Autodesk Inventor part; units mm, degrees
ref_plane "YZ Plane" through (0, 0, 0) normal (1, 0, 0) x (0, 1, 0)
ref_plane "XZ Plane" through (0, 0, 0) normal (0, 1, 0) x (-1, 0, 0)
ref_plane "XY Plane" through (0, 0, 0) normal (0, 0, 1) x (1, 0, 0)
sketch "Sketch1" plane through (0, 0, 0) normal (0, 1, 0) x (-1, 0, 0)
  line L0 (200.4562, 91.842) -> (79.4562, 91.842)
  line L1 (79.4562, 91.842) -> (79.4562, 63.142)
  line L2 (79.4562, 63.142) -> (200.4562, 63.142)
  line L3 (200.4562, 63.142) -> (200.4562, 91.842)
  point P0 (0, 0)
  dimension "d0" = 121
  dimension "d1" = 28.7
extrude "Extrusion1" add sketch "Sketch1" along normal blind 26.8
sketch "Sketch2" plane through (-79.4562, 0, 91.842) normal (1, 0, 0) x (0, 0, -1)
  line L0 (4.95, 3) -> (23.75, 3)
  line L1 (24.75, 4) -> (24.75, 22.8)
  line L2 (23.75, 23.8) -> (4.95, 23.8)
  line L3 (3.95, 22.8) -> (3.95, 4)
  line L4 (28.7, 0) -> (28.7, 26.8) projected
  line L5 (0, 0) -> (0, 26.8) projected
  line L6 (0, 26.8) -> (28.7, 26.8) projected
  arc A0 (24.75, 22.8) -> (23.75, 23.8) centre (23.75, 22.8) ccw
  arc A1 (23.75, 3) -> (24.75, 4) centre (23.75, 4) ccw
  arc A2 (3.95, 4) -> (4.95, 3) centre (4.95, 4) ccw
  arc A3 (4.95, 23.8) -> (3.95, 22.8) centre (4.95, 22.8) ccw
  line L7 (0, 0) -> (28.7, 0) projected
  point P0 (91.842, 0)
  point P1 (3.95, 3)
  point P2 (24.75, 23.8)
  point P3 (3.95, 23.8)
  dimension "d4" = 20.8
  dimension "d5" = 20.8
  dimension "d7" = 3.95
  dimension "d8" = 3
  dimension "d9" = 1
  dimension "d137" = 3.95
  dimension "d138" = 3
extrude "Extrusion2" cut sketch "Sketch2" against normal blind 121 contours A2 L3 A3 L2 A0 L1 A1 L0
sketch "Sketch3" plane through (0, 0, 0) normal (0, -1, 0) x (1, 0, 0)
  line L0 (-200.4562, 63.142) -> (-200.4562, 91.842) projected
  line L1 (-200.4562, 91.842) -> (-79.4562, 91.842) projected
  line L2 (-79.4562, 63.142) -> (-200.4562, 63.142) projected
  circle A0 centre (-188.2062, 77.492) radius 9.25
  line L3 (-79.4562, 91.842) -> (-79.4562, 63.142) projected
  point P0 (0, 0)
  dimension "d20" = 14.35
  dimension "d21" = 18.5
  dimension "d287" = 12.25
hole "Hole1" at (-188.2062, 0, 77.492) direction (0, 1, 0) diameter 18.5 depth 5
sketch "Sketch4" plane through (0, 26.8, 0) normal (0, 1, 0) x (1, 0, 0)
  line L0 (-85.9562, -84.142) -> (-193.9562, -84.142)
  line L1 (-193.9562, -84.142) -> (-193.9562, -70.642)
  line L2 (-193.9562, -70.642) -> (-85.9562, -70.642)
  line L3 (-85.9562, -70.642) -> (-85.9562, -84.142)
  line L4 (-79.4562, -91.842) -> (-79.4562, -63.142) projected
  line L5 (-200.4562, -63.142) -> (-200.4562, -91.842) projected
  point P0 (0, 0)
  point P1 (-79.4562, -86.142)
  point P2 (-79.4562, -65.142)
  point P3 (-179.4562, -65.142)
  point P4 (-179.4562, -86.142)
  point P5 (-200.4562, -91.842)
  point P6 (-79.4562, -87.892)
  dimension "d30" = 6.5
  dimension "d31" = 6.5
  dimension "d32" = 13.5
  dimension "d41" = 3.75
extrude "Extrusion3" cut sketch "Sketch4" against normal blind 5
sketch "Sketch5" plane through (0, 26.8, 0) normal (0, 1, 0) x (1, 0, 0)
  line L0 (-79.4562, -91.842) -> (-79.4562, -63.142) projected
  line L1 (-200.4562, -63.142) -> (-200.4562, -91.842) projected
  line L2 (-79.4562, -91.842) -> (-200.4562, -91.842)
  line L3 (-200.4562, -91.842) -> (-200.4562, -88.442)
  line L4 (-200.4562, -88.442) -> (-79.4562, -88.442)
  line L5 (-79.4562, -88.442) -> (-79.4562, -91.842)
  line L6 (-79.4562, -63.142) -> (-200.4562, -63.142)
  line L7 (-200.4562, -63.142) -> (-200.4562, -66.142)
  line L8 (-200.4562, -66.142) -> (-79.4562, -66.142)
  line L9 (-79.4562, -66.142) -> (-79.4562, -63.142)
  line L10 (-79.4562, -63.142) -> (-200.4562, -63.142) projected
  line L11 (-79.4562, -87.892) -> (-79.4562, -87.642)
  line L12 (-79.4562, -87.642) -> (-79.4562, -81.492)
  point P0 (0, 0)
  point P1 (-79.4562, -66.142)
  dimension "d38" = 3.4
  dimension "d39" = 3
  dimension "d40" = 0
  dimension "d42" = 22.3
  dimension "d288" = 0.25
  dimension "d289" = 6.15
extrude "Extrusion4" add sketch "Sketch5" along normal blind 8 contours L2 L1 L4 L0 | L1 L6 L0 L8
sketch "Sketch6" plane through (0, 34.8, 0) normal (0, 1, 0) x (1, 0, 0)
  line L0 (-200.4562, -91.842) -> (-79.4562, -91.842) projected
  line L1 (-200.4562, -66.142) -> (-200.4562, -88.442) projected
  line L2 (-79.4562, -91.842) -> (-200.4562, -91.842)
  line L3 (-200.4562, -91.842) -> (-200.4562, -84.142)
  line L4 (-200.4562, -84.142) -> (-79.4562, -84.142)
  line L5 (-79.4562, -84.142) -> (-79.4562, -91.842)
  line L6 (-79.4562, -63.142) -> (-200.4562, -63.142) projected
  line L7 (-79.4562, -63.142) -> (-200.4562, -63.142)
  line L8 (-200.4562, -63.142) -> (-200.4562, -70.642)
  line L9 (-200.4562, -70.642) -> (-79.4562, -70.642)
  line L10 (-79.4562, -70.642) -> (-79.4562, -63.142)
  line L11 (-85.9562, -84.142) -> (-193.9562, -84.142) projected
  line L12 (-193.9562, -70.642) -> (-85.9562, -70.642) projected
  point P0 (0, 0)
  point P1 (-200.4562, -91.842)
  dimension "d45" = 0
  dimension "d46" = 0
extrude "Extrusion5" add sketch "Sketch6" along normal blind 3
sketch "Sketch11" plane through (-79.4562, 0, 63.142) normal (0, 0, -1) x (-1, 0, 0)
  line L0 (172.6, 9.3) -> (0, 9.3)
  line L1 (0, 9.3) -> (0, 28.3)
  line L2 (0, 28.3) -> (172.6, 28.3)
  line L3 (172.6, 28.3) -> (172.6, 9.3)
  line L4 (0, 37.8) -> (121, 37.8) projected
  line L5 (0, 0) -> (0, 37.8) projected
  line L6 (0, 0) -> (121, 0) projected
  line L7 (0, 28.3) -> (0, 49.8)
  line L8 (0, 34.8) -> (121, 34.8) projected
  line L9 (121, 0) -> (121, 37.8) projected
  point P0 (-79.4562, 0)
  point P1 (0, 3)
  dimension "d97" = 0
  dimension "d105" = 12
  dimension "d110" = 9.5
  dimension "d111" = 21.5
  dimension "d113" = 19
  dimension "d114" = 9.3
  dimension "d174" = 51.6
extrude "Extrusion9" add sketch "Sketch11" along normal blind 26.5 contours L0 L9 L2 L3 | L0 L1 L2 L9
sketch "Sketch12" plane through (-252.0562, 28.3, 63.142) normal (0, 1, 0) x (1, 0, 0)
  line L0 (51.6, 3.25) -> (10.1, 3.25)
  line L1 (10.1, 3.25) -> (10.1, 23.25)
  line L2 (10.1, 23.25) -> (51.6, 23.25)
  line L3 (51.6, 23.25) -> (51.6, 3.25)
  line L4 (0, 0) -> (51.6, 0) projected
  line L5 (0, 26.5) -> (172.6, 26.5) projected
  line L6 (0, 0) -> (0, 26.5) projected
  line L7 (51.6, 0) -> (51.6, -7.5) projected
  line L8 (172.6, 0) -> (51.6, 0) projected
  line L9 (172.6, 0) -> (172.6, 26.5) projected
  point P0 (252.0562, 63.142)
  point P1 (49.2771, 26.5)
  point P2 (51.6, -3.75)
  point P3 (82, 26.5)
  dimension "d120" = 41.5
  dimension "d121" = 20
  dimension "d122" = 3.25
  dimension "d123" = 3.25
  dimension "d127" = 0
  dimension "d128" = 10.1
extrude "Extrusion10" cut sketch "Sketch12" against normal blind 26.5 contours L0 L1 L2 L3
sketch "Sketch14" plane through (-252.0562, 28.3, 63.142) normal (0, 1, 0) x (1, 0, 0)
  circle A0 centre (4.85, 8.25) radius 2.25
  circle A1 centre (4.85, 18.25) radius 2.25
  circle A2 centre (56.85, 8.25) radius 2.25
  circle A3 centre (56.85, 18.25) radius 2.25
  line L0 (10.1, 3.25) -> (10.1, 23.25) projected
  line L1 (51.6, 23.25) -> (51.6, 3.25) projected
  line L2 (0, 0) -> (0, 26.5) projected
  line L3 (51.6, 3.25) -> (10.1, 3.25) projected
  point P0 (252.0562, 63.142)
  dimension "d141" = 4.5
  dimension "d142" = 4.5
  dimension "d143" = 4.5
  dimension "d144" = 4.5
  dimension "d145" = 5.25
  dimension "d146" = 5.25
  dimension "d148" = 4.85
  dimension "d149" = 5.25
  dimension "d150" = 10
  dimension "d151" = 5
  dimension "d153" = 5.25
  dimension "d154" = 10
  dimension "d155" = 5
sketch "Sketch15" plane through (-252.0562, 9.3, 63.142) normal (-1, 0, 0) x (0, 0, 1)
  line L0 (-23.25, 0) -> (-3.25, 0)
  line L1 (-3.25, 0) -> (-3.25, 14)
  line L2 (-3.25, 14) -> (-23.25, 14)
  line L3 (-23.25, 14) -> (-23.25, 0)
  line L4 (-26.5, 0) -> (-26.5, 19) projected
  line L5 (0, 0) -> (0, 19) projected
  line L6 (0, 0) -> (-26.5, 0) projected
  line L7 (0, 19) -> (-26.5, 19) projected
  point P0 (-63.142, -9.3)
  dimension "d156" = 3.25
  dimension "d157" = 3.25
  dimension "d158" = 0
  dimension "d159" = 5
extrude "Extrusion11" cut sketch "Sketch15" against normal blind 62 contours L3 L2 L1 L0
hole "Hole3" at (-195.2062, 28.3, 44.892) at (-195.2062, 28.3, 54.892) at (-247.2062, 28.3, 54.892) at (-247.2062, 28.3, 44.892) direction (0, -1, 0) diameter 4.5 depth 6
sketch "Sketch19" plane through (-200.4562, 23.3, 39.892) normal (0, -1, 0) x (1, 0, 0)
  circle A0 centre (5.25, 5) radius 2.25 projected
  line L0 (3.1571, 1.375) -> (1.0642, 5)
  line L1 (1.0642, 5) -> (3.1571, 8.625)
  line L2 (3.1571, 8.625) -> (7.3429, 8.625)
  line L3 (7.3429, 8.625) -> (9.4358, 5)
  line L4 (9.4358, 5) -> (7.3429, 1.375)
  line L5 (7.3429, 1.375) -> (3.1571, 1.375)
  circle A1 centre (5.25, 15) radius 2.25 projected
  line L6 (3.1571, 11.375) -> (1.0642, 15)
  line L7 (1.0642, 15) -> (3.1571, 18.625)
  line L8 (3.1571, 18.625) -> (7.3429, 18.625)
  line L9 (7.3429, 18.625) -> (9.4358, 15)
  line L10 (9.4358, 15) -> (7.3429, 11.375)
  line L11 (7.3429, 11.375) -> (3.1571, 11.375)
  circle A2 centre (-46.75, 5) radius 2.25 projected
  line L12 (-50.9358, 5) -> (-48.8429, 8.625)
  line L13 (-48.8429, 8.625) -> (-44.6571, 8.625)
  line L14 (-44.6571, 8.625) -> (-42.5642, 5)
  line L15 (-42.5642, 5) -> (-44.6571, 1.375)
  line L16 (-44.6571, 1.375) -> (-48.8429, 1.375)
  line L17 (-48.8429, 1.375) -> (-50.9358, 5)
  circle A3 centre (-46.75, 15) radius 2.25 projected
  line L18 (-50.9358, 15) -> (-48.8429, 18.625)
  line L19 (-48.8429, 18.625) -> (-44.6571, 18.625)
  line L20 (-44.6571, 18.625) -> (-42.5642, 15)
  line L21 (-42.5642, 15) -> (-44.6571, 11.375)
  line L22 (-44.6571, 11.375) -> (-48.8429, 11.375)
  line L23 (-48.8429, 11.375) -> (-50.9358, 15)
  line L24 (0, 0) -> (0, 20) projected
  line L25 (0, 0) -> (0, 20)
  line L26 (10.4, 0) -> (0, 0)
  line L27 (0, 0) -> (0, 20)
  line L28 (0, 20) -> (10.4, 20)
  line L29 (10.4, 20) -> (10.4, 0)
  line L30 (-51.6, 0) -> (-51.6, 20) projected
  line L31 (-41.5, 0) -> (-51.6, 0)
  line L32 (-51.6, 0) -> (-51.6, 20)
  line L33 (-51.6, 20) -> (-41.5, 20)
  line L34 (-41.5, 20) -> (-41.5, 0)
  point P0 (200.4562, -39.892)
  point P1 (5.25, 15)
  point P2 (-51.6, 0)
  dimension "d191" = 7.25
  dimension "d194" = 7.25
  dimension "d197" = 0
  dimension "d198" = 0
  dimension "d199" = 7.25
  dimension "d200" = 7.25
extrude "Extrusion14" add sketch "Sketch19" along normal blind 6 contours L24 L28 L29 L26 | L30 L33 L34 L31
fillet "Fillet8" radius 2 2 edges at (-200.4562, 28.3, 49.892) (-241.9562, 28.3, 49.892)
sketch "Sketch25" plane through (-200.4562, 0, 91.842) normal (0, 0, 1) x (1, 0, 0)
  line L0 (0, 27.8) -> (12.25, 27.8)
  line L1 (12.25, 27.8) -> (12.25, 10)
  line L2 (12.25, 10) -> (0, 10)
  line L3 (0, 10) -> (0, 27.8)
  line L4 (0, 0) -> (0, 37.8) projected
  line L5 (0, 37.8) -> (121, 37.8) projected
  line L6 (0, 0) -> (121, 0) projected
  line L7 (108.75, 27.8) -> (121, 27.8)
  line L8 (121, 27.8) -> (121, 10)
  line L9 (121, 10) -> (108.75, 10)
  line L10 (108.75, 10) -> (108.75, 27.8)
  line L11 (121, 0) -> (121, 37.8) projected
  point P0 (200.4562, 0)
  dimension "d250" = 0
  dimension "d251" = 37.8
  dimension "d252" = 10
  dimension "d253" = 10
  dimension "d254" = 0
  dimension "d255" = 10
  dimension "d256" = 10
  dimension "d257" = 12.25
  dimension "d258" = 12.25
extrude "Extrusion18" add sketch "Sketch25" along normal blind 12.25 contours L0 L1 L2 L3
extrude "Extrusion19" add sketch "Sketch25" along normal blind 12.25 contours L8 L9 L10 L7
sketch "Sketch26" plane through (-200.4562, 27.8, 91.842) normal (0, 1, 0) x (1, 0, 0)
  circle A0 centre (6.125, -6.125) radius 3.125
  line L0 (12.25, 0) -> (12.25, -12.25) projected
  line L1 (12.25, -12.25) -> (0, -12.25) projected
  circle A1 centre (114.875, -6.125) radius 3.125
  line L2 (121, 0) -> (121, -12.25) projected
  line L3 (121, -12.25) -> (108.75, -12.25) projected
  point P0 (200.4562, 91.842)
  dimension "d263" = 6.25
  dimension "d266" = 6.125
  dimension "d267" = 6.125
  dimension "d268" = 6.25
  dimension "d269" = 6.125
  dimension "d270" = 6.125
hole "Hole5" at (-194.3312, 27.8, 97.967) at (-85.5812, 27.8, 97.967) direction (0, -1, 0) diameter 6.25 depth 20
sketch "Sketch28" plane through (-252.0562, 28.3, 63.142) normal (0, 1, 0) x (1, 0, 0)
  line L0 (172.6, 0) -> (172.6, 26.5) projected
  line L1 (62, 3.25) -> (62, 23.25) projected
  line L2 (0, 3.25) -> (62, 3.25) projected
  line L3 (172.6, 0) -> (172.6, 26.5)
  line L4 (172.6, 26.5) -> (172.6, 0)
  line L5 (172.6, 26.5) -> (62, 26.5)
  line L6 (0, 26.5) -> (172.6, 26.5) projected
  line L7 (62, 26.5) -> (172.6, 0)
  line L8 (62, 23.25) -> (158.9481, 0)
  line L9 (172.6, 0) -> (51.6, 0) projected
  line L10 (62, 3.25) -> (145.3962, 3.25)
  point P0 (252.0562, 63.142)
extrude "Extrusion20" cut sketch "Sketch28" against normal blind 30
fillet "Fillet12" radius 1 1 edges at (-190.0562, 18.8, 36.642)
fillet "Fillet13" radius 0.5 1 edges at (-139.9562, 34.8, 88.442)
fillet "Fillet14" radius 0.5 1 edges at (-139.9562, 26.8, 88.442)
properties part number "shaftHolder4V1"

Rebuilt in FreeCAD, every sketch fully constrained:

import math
import FreeCAD as App
import Part
import Sketcher
Q = App.Units.Quantity


def edges_at(feature, points):
    """Names of the edges that pass closest to the given points."""
    edges = feature.Shape.Edges
    near = lambda p: min(range(len(edges)), key=lambda i: edges[i].distToShape(Part.Vertex(*p))[0])
    return sorted({f"Edge{near(p) + 1}" for p in points})


def add_polygon(sketch, points):
    """Adds a closed chain of lines whose ends are joined by coincident constraints."""
    first, n = sketch.GeometryCount, len(points)
    for a, b in zip(points, points[1:] + points[:1]):
        sketch.addGeometry(Part.LineSegment(App.Vector(*a, 0), App.Vector(*b, 0)), False)
    for i in range(n):
        sketch.addConstraint(Sketcher.Constraint("Coincident", first + i, 2, first + (i + 1) % n, 1))

doc = App.newDocument("Part")
body = doc.addObject("PartDesign::Body", "Body")

# Sketch on XZ plane
sketch1 = doc.addObject("Sketcher::SketchObject", "Sketch")
body.addObject(sketch1)
sketch1.AttachmentSupport = (doc.XZ_Plane, [""])
sketch1.MapMode = "FlatFace"
add_polygon(sketch1, [(-200.4562, 63.142), (-200.4562, 91.842), (-79.4562, 91.842), (-79.4562, 63.142)])  # lines 0-3
sketch1.addConstraint([
    Sketcher.Constraint("Vertical", 0),
    Sketcher.Constraint("Horizontal", 1),
    Sketcher.Constraint("Vertical", 2),
    Sketcher.Constraint("Horizontal", 3),
    Sketcher.Constraint("DistanceX", 1, 1, 1, 2, Q("121 mm")),
    Sketcher.Constraint("DistanceY", 0, 1, 0, 2, Q("28.7 mm")),
    Sketcher.Constraint("DistanceY", -1, 1, 0, 2, Q("91.842 mm")),
    Sketcher.Constraint("DistanceX", 0, 2, -1, 1, Q("200.4562 mm")),
])
pad1 = doc.addObject("PartDesign::Pad", "Pad")
body.addObject(pad1)
pad1.Profile = sketch1
pad1.Length = 26.8
pad1.Reversed = True

# Sketch on YZ plane
sketch2 = doc.addObject("Sketcher::SketchObject", "Sketch001")
body.addObject(sketch2)
sketch2.AttachmentSupport = (doc.YZ_Plane, [""])
sketch2.MapMode = "FlatFace"
sketch2.AttachmentOffset = App.Placement(App.Vector(0, 0, -79.4562), App.Rotation())
sketch2.addGeometry([
    Part.ArcOfCircle(Part.Circle(App.Vector(4, 86.892, 0), App.Vector(0, 0, 1), 1), math.radians(90), math.radians(180)),  # 0
    Part.LineSegment(App.Vector(3, 86.892, 0), App.Vector(3, 68.092, 0)),  # 1
    Part.ArcOfCircle(Part.Circle(App.Vector(4, 68.092, 0), App.Vector(0, 0, 1), 1), math.radians(180), math.radians(270)),  # 2
    Part.LineSegment(App.Vector(4, 67.092, 0), App.Vector(22.8, 67.092, 0)),  # 3
    Part.ArcOfCircle(Part.Circle(App.Vector(22.8, 68.092, 0), App.Vector(0, 0, 1), 1), math.radians(-90), math.radians(0)),  # 4
    Part.LineSegment(App.Vector(23.8, 68.092, 0), App.Vector(23.8, 86.892, 0)),  # 5
    Part.ArcOfCircle(Part.Circle(App.Vector(22.8, 86.892, 0), App.Vector(0, 0, 1), 1), math.radians(0), math.radians(90)),  # 6
    Part.LineSegment(App.Vector(22.8, 87.892, 0), App.Vector(4, 87.892, 0)),  # 7
], False)
sketch2.addConstraint([
    Sketcher.Constraint("Tangent", 0, 2, 1, 1),
    Sketcher.Constraint("Tangent", 1, 2, 2, 1),
    Sketcher.Constraint("Tangent", 2, 2, 3, 1),
    Sketcher.Constraint("Tangent", 3, 2, 4, 1),
    Sketcher.Constraint("Tangent", 4, 2, 5, 1),
    Sketcher.Constraint("Tangent", 5, 2, 6, 1),
    Sketcher.Constraint("Tangent", 6, 2, 7, 1),
    Sketcher.Constraint("Tangent", 7, 2, 0, 1),
    Sketcher.Constraint("Vertical", 1),
    Sketcher.Constraint("Horizontal", 3),
    Sketcher.Constraint("Vertical", 5),
    Sketcher.Constraint("Horizontal", 7),
    Sketcher.Constraint("Equal", 0, 2),
    Sketcher.Constraint("Equal", 2, 4),
    Sketcher.Constraint("Equal", 4, 6),
    Sketcher.Constraint("Equal", 7, 1),
    Sketcher.Constraint("Radius", 0, Q("1 mm")),
    Sketcher.Constraint("DistanceX", -1, 1, 0, 2, Q("3 mm")),
    Sketcher.Constraint("DistanceX", 3, 1, 3, 2, Q("18.8 mm")),
    Sketcher.Constraint("DistanceY", -1, 1, 0, 3, Q("86.892 mm")),
])
pocket1 = doc.addObject("PartDesign::Pocket", "Pocket")
body.addObject(pocket1)
pocket1.Profile = sketch2
pocket1.Length = 121

# Sketch on XZ plane
sketch3 = doc.addObject("Sketcher::SketchObject", "Sketch002")
body.addObject(sketch3)
sketch3.AttachmentSupport = (doc.XZ_Plane, [""])
sketch3.MapMode = "FlatFace"
sketch3.addGeometry(Part.Circle(App.Vector(-188.2062, 77.492, 0), App.Vector(0, 0, 1), 9.25), False)
sketch3.addConstraint([
    Sketcher.Constraint("Diameter", 0, Q("18.5 mm")),
    Sketcher.Constraint("DistanceY", -1, 1, 0, 3, Q("77.492 mm")),
    Sketcher.Constraint("DistanceX", 0, 3, -1, 1, Q("188.2062 mm")),
])
doc.recompute()
hole = doc.addObject("PartDesign::Hole", "Hole")
body.addObject(hole)
hole.Profile = sketch3
hole.ThreadType = "None"
hole.Diameter = 18.5
hole.DepthType = "Dimension"
hole.Depth = 5
hole.DrillPoint = "Flat"

# Sketch on XZ plane
sketch4 = doc.addObject("Sketcher::SketchObject", "Sketch003")
body.addObject(sketch4)
sketch4.AttachmentSupport = (doc.XZ_Plane, [""])
sketch4.MapMode = "FlatFace"
sketch4.AttachmentOffset = App.Placement(App.Vector(0, 0, -26.8), App.Rotation())
add_polygon(sketch4, [(-193.9562, 84.142), (-85.9562, 84.142), (-85.9562, 70.642), (-193.9562, 70.642)])  # lines 0-3
sketch4.addConstraint([
    Sketcher.Constraint("Horizontal", 0),
    Sketcher.Constraint("Vertical", 1),
    Sketcher.Constraint("Horizontal", 2),
    Sketcher.Constraint("Vertical", 3),
    Sketcher.Constraint("DistanceY", 1, 2, 1, 1, Q("13.5 mm")),
    Sketcher.Constraint("DistanceX", 0, 1, 0, 2, Q("108 mm")),
    Sketcher.Constraint("DistanceY", -1, 1, 0, 2, Q("84.142 mm")),
    Sketcher.Constraint("DistanceX", 0, 2, -1, 1, Q("85.9562 mm")),
])
pocket2 = doc.addObject("PartDesign::Pocket", "Pocket001")
body.addObject(pocket2)
pocket2.Profile = sketch4
pocket2.Length = 5
pocket2.Reversed = True

# Sketch on XZ plane
sketch5 = doc.addObject("Sketcher::SketchObject", "Sketch004")
body.addObject(sketch5)
sketch5.AttachmentSupport = (doc.XZ_Plane, [""])
sketch5.MapMode = "FlatFace"
sketch5.AttachmentOffset = App.Placement(App.Vector(0, 0, -26.8), App.Rotation())
add_polygon(sketch5, [(-200.4562, 91.842), (-79.4562, 91.842), (-79.4562, 88.442), (-200.4562, 88.442)])  # lines 0-3
add_polygon(sketch5, [(-200.4562, 63.142), (-200.4562, 66.142), (-79.4562, 66.142), (-79.4562, 63.142)])  # lines 4-7
sketch5.addConstraint([
    Sketcher.Constraint("Horizontal", 0),
    Sketcher.Constraint("Vertical", 1),
    Sketcher.Constraint("Horizontal", 2),
    Sketcher.Constraint("Vertical", 3),
    Sketcher.Constraint("Vertical", 4),
    Sketcher.Constraint("Horizontal", 5),
    Sketcher.Constraint("Vertical", 6),
    Sketcher.Constraint("Horizontal", 7),
    Sketcher.Constraint("Vertical", 3, 2, 4, 2),
    Sketcher.Constraint("Vertical", 1, 2, 5, 2),
    Sketcher.Constraint("DistanceY", 4, 1, 4, 2, Q("3 mm")),
    Sketcher.Constraint("DistanceY", 1, 2, 1, 1, Q("3.4 mm")),
    Sketcher.Constraint("DistanceY", 4, 2, 2, 2, Q("22.3 mm")),
    Sketcher.Constraint("DistanceX", 0, 1, 0, 2, Q("121 mm")),
    Sketcher.Constraint("DistanceY", -1, 1, 0, 2, Q("91.842 mm")),
    Sketcher.Constraint("DistanceX", 0, 2, -1, 1, Q("79.4562 mm")),
])
pad2 = doc.addObject("PartDesign::Pad", "Pad001")
body.addObject(pad2)
pad2.Profile = sketch5
pad2.Length = 8
pad2.Reversed = True

# Sketch on XZ plane
sketch6 = doc.addObject("Sketcher::SketchObject", "Sketch005")
body.addObject(sketch6)
sketch6.AttachmentSupport = (doc.XZ_Plane, [""])
sketch6.MapMode = "FlatFace"
sketch6.AttachmentOffset = App.Placement(App.Vector(0, 0, -34.8), App.Rotation())
add_polygon(sketch6, [(-200.4562, 84.142), (-200.4562, 91.842), (-79.4562, 91.842), (-79.4562, 84.142)])  # lines 0-3
add_polygon(sketch6, [(-200.4562, 63.142), (-200.4562, 70.642), (-79.4562, 70.642), (-79.4562, 63.142)])  # lines 4-7
sketch6.addConstraint([
    Sketcher.Constraint("Vertical", 0),
    Sketcher.Constraint("Horizontal", 1),
    Sketcher.Constraint("Vertical", 2),
    Sketcher.Constraint("Horizontal", 3),
    Sketcher.Constraint("Vertical", 4),
    Sketcher.Constraint("Horizontal", 5),
    Sketcher.Constraint("Vertical", 6),
    Sketcher.Constraint("Horizontal", 7),
    Sketcher.Constraint("Vertical", 3, 2, 4, 2),
    Sketcher.Constraint("Vertical", 2, 2, 5, 2),
    Sketcher.Constraint("DistanceX", 1, 1, 1, 2, Q("121 mm")),
    Sketcher.Constraint("DistanceY", 0, 1, 0, 2, Q("7.7 mm")),
    Sketcher.Constraint("DistanceY", 4, 1, 4, 2, Q("7.5 mm")),
    Sketcher.Constraint("DistanceY", 6, 2, 2, 2, Q("21 mm")),
    Sketcher.Constraint("DistanceY", -1, 1, 0, 2, Q("91.842 mm")),
    Sketcher.Constraint("DistanceX", 0, 2, -1, 1, Q("200.4562 mm")),
])
pad3 = doc.addObject("PartDesign::Pad", "Pad002")
body.addObject(pad3)
pad3.Profile = sketch6
pad3.Length = 3
pad3.Reversed = True

# Sketch on XY plane
sketch7 = doc.addObject("Sketcher::SketchObject", "Sketch006")
body.addObject(sketch7)
sketch7.AttachmentSupport = (doc.XY_Plane, [""])
sketch7.MapMode = "FlatFace"
sketch7.AttachmentOffset = App.Placement(App.Vector(0, 0, 63.142), App.Rotation())
add_polygon(sketch7, [(-252.0562, 9.3), (-252.0562, 28.3), (-79.4562, 28.3), (-79.4562, 9.3)])  # lines 0-3
sketch7.addConstraint([
    Sketcher.Constraint("Vertical", 0),
    Sketcher.Constraint("Horizontal", 1),
    Sketcher.Constraint("Vertical", 2),
    Sketcher.Constraint("Horizontal", 3),
    Sketcher.Constraint("DistanceY", 0, 1, 0, 2, Q("19 mm")),
    Sketcher.Constraint("DistanceY", -1, 1, 2, 2, Q("9.3 mm")),
    Sketcher.Constraint("DistanceX", 1, 1, 1, 2, Q("172.6 mm")),
    Sketcher.Constraint("DistanceX", 0, 2, -1, 1, Q("252.0562 mm")),
])
pad4 = doc.addObject("PartDesign::Pad", "Pad003")
body.addObject(pad4)
pad4.Profile = sketch7
pad4.Length = 26.5
pad4.Reversed = True

# Sketch on XZ plane
sketch8 = doc.addObject("Sketcher::SketchObject", "Sketch007")
body.addObject(sketch8)
sketch8.AttachmentSupport = (doc.XZ_Plane, [""])
sketch8.MapMode = "FlatFace"
sketch8.AttachmentOffset = App.Placement(App.Vector(0, 0, -28.3), App.Rotation())
add_polygon(sketch8, [(-241.9562, 59.892), (-200.4562, 59.892), (-200.4562, 39.892), (-241.9562, 39.892)])  # lines 0-3
sketch8.addConstraint([
    Sketcher.Constraint("Horizontal", 0),
    Sketcher.Constraint("Vertical", 1),
    Sketcher.Constraint("Horizontal", 2),
    Sketcher.Constraint("Vertical", 3),
    Sketcher.Constraint("DistanceY", 1, 2, 1, 1, Q("20 mm")),
    Sketcher.Constraint("DistanceX", 0, 1, 0, 2, Q("41.5 mm")),
    Sketcher.Constraint("DistanceY", -1, 1, 0, 2, Q("59.892 mm")),
    Sketcher.Constraint("DistanceX", 0, 2, -1, 1, Q("200.4562 mm")),
])
pocket3 = doc.addObject("PartDesign::Pocket", "Pocket002")
body.addObject(pocket3)
pocket3.Profile = sketch8
pocket3.Length = 26.5
pocket3.Reversed = True

# Sketch on YZ plane
sketch9 = doc.addObject("Sketcher::SketchObject", "Sketch008")
body.addObject(sketch9)
sketch9.AttachmentSupport = (doc.YZ_Plane, [""])
sketch9.MapMode = "FlatFace"
sketch9.AttachmentOffset = App.Placement(App.Vector(0, 0, -252.0562), App.Rotation())
add_polygon(sketch9, [(23.3, 39.892), (9.3, 39.892), (9.3, 59.892), (23.3, 59.892)])  # lines 0-3
sketch9.addConstraint([
    Sketcher.Constraint("Horizontal", 0),
    Sketcher.Constraint("Vertical", 1),
    Sketcher.Constraint("Horizontal", 2),
    Sketcher.Constraint("Vertical", 3),
    Sketcher.Constraint("DistanceX", 0, 2, 0, 1, Q("14 mm")),
    Sketcher.Constraint("DistanceY", 1, 1, 1, 2, Q("20 mm")),
    Sketcher.Constraint("DistanceX", -1, 1, 0, 2, Q("9.3 mm")),
    Sketcher.Constraint("DistanceY", -1, 1, 0, 2, Q("39.892 mm")),
])
pocket4 = doc.addObject("PartDesign::Pocket", "Pocket003")
body.addObject(pocket4)
pocket4.Profile = sketch9
pocket4.Length = 62
pocket4.Reversed = True

# Sketch on XZ plane
sketch10 = doc.addObject("Sketcher::SketchObject", "Sketch009")
body.addObject(sketch10)
sketch10.AttachmentSupport = (doc.XZ_Plane, [""])
sketch10.MapMode = "FlatFace"
sketch10.AttachmentOffset = App.Placement(App.Vector(0, 0, -28.3), App.Rotation())
sketch10.addGeometry([
    Part.Circle(App.Vector(-195.2062, 44.892, 0), App.Vector(0, 0, 1), 2.25),
    Part.Circle(App.Vector(-195.2062, 54.892, 0), App.Vector(0, 0, 1), 2.25),
    Part.Circle(App.Vector(-247.2062, 54.892, 0), App.Vector(0, 0, 1), 2.25),
    Part.Circle(App.Vector(-247.2062, 44.892, 0), App.Vector(0, 0, 1), 2.25),
], False)
sketch10.addConstraint([
    Sketcher.Constraint("Equal", 0, 1),
    Sketcher.Constraint("Equal", 1, 2),
    Sketcher.Constraint("Equal", 2, 3),
    Sketcher.Constraint("Horizontal", 1, 3, 2, 3),
    Sketcher.Constraint("Horizontal", 0, 3, 3, 3),
    Sketcher.Constraint("Vertical", 0, 3, 1, 3),
    Sketcher.Constraint("Vertical", 2, 3, 3, 3),
    Sketcher.Constraint("Diameter", 0, Q("4.5 mm")),
    Sketcher.Constraint("DistanceY", 0, 3, 1, 3, Q("10 mm")),
    Sketcher.Constraint("DistanceX", 2, 3, 1, 3, Q("52 mm")),
    Sketcher.Constraint("DistanceY", -1, 1, 0, 3, Q("44.892 mm")),
    Sketcher.Constraint("DistanceX", 0, 3, -1, 1, Q("195.2062 mm")),
])
doc.recompute()
hole2 = doc.addObject("PartDesign::Hole", "Hole001")
body.addObject(hole2)
hole2.Profile = sketch10
hole2.ThreadType = "None"
hole2.Diameter = 4.5
hole2.DepthType = "Dimension"
hole2.Depth = 6
hole2.DrillPoint = "Flat"
hole2.Reversed = True

# Sketch on XZ plane
sketch11 = doc.addObject("Sketcher::SketchObject", "Sketch010")
body.addObject(sketch11)
sketch11.AttachmentSupport = (doc.XZ_Plane, [""])
sketch11.MapMode = "FlatFace"
sketch11.AttachmentOffset = App.Placement(App.Vector(0, 0, -23.3), App.Rotation())
add_polygon(sketch11, [(-200.4562, 59.892), (-200.4562, 39.892), (-190.0562, 39.892), (-190.0562, 59.892)])  # lines 0-3
add_polygon(sketch11, [(-193.1133, 41.267), (-197.2991, 41.267), (-199.392, 44.892), (-197.2991, 48.517), (-193.1133, 48.517), (-191.0204, 44.892)])  # lines 4-9
add_polygon(sketch11, [(-193.1133, 51.267), (-197.2991, 51.267), (-199.392, 54.892), (-197.2991, 58.517), (-193.1133, 58.517), (-191.0204, 54.892)])  # lines 10-15
add_polygon(sketch11, [(-252.0562, 59.892), (-252.0562, 39.892), (-241.9562, 39.892), (-241.9562, 59.892)])  # lines 16-19
add_polygon(sketch11, [(-249.2991, 41.267), (-251.392, 44.892), (-249.2991, 48.517), (-245.1133, 48.517), (-243.0204, 44.892), (-245.1133, 41.267)])  # lines 20-25
add_polygon(sketch11, [(-249.2991, 51.267), (-251.392, 54.892), (-249.2991, 58.517), (-245.1133, 58.517), (-243.0204, 54.892), (-245.1133, 51.267)])  # lines 26-31
sketch11.addConstraint([
    Sketcher.Constraint("Vertical", 0),
    Sketcher.Constraint("Horizontal", 1),
    Sketcher.Constraint("Vertical", 2),
    Sketcher.Constraint("Horizontal", 3),
    Sketcher.Constraint("Horizontal", 4),
    Sketcher.Constraint("Horizontal", 7),
    Sketcher.Constraint("Horizontal", 10),
    Sketcher.Constraint("Horizontal", 13),
    Sketcher.Constraint("Vertical", 16),
    Sketcher.Constraint("Horizontal", 17),
    Sketcher.Constraint("Vertical", 18),
    Sketcher.Constraint("Horizontal", 19),
    Sketcher.Constraint("Horizontal", 22),
    Sketcher.Constraint("Horizontal", 25),
    Sketcher.Constraint("Horizontal", 28),
    Sketcher.Constraint("Horizontal", 31),
    Sketcher.Constraint("Parallel", 5, 8),
    Sketcher.Constraint("Parallel", 6, 9),
    Sketcher.Constraint("Parallel", 8, 11),
    Sketcher.Constraint("Parallel", 9, 12),
    Sketcher.Constraint("Parallel", 11, 14),
    Sketcher.Constraint("Parallel", 12, 15),
    Sketcher.Constraint("Parallel", 14, 20),
    Sketcher.Constraint("Parallel", 15, 21),
    Sketcher.Constraint("Parallel", 20, 23),
    Sketcher.Constraint("Parallel", 21, 24),
    Sketcher.Constraint("Parallel", 23, 26),
    Sketcher.Constraint("Parallel", 24, 27),
    Sketcher.Constraint("Parallel", 26, 29),
    Sketcher.Constraint("Parallel", 27, 30),
    Sketcher.Constraint("Horizontal", 5, 2, 8, 2),
    Sketcher.Constraint("Horizontal", 11, 2, 14, 2),
    Sketcher.Constraint("Horizontal", 1, 2, 16, 2),
    Sketcher.Constraint("Horizontal", 3, 2, 18, 2),
    Sketcher.Constraint("Horizontal", 8, 2, 20, 2),
    Sketcher.Constraint("Horizontal", 7, 2, 21, 2),
    Sketcher.Constraint("Horizontal", 20, 2, 23, 2),
    Sketcher.Constraint("Horizontal", 9, 2, 24, 2),
    Sketcher.Constraint("Horizontal", 14, 2, 26, 2),
    Sketcher.Constraint("Horizontal", 13, 2, 27, 2),
    Sketcher.Constraint("Horizontal", 26, 2, 29, 2),
    Sketcher.Constraint("Horizontal", 15, 2, 30, 2),
    Sketcher.Constraint("Vertical", 4, 2, 6, 2),
    Sketcher.Constraint("Vertical", 7, 2, 9, 2),
    Sketcher.Constraint("Vertical", 6, 2, 10, 2),
    Sketcher.Constraint("Vertical", 5, 2, 11, 2),
    Sketcher.Constraint("Vertical", 10, 2, 12, 2),
    Sketcher.Constraint("Vertical", 9, 2, 13, 2),
    Sketcher.Constraint("Vertical", 20, 2, 26, 2),
    Sketcher.Constraint("Vertical", 24, 2, 28, 2),
    Sketcher.Constraint("Equal", 13, 22),
    Sketcher.Constraint("DistanceY", 0, 2, 0, 1, Q("20 mm")),
    Sketcher.Constraint("Angle", 5, Q("120 deg")),
    Sketcher.Constraint("DistanceY", 4, 2, 6, 2, Q("7.25 mm")),
    Sketcher.Constraint("DistanceX", 1, 1, 1, 2, Q("10.4 mm")),
    Sketcher.Constraint("DistanceX", 17, 1, 17, 2, Q("10.1 mm")),
    Sketcher.Constraint("DistanceY", 0, 2, 5, 2, Q("5 mm")),
    Sketcher.Constraint("DistanceY", 11, 2, 3, 2, Q("5 mm")),
    Sketcher.Constraint("DistanceX", 16, 2, 0, 2, Q("51.6 mm")),
    Sketcher.Constraint("DistanceX", 4, 2, 4, 1, Q("4.1858 mm")),
    Sketcher.Constraint("DistanceY", -1, 1, 0, 2, Q("39.892 mm")),
    Sketcher.Constraint("DistanceX", 4, 2, -1, 1, Q("197.299 mm")),
    Sketcher.Constraint("DistanceX", 20, 2, -1, 1, Q("251.392 mm")),
    Sketcher.Constraint("DistanceX", 0, 2, 4, 2, Q("3.157 mm")),
])
pad5 = doc.addObject("PartDesign::Pad", "Pad004")
body.addObject(pad5)
pad5.Profile = sketch11
pad5.Length = 6
doc.recompute()

fillet = doc.addObject("PartDesign::Fillet", "Fillet")
body.addObject(fillet)
fillet.Base = (pad5, edges_at(pad5, [(-200.456, 28.3, 49.892), (-241.956, 28.3, 49.892)]))
fillet.Radius = 2

# Sketch on XY plane
sketch12 = doc.addObject("Sketcher::SketchObject", "Sketch011")
body.addObject(sketch12)
sketch12.AttachmentSupport = (doc.XY_Plane, [""])
sketch12.MapMode = "FlatFace"
sketch12.AttachmentOffset = App.Placement(App.Vector(0, 0, 91.842), App.Rotation())
add_polygon(sketch12, [(-188.2062, 27.8), (-200.4562, 27.8), (-200.4562, 10), (-188.2062, 10)])  # lines 0-3
sketch12.addConstraint([
    Sketcher.Constraint("Horizontal", 0),
    Sketcher.Constraint("Vertical", 1),
    Sketcher.Constraint("Horizontal", 2),
    Sketcher.Constraint("Vertical", 3),
    Sketcher.Constraint("DistanceY", -1, 1, 1, 2, Q("10 mm")),
    Sketcher.Constraint("DistanceX", 0, 2, 0, 1, Q("12.25 mm")),
    Sketcher.Constraint("DistanceY", 1, 2, 1, 1, Q("17.8 mm")),
    Sketcher.Constraint("DistanceX", 0, 2, -1, 1, Q("200.4562 mm")),
])
pad6 = doc.addObject("PartDesign::Pad", "Pad005")
body.addObject(pad6)
pad6.Profile = sketch12
pad6.Length = 12.25

# Sketch on XY plane
sketch13 = doc.addObject("Sketcher::SketchObject", "Sketch012")
body.addObject(sketch13)
sketch13.AttachmentSupport = (doc.XY_Plane, [""])
sketch13.MapMode = "FlatFace"
sketch13.AttachmentOffset = App.Placement(App.Vector(0, 0, 91.842), App.Rotation())
add_polygon(sketch13, [(-79.4562, 10), (-79.4562, 27.8), (-91.7062, 27.8), (-91.7062, 10)])  # lines 0-3
sketch13.addConstraint([
    Sketcher.Constraint("Vertical", 0),
    Sketcher.Constraint("Horizontal", 1),
    Sketcher.Constraint("Vertical", 2),
    Sketcher.Constraint("Horizontal", 3),
    Sketcher.Constraint("DistanceY", -1, 1, 2, 2, Q("10 mm")),
    Sketcher.Constraint("DistanceX", 1, 2, 1, 1, Q("12.25 mm")),
    Sketcher.Constraint("DistanceY", 0, 1, 0, 2, Q("17.8 mm")),
    Sketcher.Constraint("DistanceX", 0, 2, -1, 1, Q("79.4562 mm")),
])
pad7 = doc.addObject("PartDesign::Pad", "Pad006")
body.addObject(pad7)
pad7.Profile = sketch13
pad7.Length = 12.25

# Sketch on XZ plane
sketch14 = doc.addObject("Sketcher::SketchObject", "Sketch013")
body.addObject(sketch14)
sketch14.AttachmentSupport = (doc.XZ_Plane, [""])
sketch14.MapMode = "FlatFace"
sketch14.AttachmentOffset = App.Placement(App.Vector(0, 0, -27.8), App.Rotation())
sketch14.addGeometry([
    Part.Circle(App.Vector(-194.3312, 97.967, 0), App.Vector(0, 0, 1), 3.125),
    Part.Circle(App.Vector(-85.5812, 97.967, 0), App.Vector(0, 0, 1), 3.125),
], False)
sketch14.addConstraint([
    Sketcher.Constraint("Equal", 0, 1),
    Sketcher.Constraint("Horizontal", 0, 3, 1, 3),
    Sketcher.Constraint("Diameter", 0, Q("6.25 mm")),
    Sketcher.Constraint("DistanceX", 0, 3, 1, 3, Q("108.75 mm")),
    Sketcher.Constraint("DistanceY", -1, 1, 0, 3, Q("97.967 mm")),
    Sketcher.Constraint("DistanceX", 0, 3, -1, 1, Q("194.3312 mm")),
])
doc.recompute()
hole3 = doc.addObject("PartDesign::Hole", "Hole002")
body.addObject(hole3)
hole3.Profile = sketch14
hole3.ThreadType = "None"
hole3.Diameter = 6.25
hole3.DepthType = "Dimension"
hole3.Depth = 20
hole3.DrillPoint = "Flat"
hole3.Reversed = True

# Sketch on XZ plane
sketch15 = doc.addObject("Sketcher::SketchObject", "Sketch014")
body.addObject(sketch15)
sketch15.AttachmentSupport = (doc.XZ_Plane, [""])
sketch15.MapMode = "FlatFace"
sketch15.AttachmentOffset = App.Placement(App.Vector(0, 0, -28.3), App.Rotation())
add_polygon(sketch15, [(-190.0562, 36.642), (-79.4562, 63.142), (-79.4562, 36.642)])  # lines 0-2
add_polygon(sketch15, [(-190.0562, 59.892), (-106.659999, 59.891997), (-190.0562, 39.892)])  # lines 3-5
sketch15.addConstraint([
    Sketcher.Constraint("Vertical", 1),
    Sketcher.Constraint("Horizontal", 2),
    Sketcher.Constraint("Horizontal", 3),
    Sketcher.Constraint("Vertical", 5),
    Sketcher.Constraint("DistanceY", 5, 1, 5, 2, Q("20 mm")),
    Sketcher.Constraint("DistanceX", 2, 2, 2, 1, Q("110.6 mm")),
    Sketcher.Constraint("DistanceY", 1, 2, 1, 1, Q("26.5 mm")),
    Sketcher.Constraint("DistanceX", 4, 2, 1, 2, Q("110.6 mm")),
    Sketcher.Constraint("DistanceX", 3, 2, -1, 1, Q("106.66 mm")),
    Sketcher.Constraint("DistanceY", 3, 2, 0, 2, Q("3.25 mm")),
    Sketcher.Constraint("DistanceX", 3, 1, 3, 2, Q("83.3962 mm")),
    Sketcher.Constraint("DistanceY", -1, 1, 0, 2, Q("63.142 mm")),
])
pocket5 = doc.addObject("PartDesign::Pocket", "Pocket004")
body.addObject(pocket5)
pocket5.Profile = sketch15
pocket5.Length = 30
pocket5.Reversed = True
doc.recompute()

fillet2 = doc.addObject("PartDesign::Fillet", "Fillet001")
body.addObject(fillet2)
fillet2.Base = (pocket5, edges_at(pocket5, [(-190.056, 18.8, 36.642)]))
fillet2.Radius = 1
doc.recompute()

fillet3 = doc.addObject("PartDesign::Fillet", "Fillet002")
body.addObject(fillet3)
fillet3.Base = (fillet2, edges_at(fillet2, [(-139.956, 34.8, 88.442)]))
fillet3.Radius = 0.5
doc.recompute()

fillet4 = doc.addObject("PartDesign::Fillet", "Fillet003")
body.addObject(fillet4)
fillet4.Base = (fillet3, edges_at(fillet3, [(-139.956, 26.8, 88.442)]))
fillet4.Radius = 0.5

doc.recompute()
